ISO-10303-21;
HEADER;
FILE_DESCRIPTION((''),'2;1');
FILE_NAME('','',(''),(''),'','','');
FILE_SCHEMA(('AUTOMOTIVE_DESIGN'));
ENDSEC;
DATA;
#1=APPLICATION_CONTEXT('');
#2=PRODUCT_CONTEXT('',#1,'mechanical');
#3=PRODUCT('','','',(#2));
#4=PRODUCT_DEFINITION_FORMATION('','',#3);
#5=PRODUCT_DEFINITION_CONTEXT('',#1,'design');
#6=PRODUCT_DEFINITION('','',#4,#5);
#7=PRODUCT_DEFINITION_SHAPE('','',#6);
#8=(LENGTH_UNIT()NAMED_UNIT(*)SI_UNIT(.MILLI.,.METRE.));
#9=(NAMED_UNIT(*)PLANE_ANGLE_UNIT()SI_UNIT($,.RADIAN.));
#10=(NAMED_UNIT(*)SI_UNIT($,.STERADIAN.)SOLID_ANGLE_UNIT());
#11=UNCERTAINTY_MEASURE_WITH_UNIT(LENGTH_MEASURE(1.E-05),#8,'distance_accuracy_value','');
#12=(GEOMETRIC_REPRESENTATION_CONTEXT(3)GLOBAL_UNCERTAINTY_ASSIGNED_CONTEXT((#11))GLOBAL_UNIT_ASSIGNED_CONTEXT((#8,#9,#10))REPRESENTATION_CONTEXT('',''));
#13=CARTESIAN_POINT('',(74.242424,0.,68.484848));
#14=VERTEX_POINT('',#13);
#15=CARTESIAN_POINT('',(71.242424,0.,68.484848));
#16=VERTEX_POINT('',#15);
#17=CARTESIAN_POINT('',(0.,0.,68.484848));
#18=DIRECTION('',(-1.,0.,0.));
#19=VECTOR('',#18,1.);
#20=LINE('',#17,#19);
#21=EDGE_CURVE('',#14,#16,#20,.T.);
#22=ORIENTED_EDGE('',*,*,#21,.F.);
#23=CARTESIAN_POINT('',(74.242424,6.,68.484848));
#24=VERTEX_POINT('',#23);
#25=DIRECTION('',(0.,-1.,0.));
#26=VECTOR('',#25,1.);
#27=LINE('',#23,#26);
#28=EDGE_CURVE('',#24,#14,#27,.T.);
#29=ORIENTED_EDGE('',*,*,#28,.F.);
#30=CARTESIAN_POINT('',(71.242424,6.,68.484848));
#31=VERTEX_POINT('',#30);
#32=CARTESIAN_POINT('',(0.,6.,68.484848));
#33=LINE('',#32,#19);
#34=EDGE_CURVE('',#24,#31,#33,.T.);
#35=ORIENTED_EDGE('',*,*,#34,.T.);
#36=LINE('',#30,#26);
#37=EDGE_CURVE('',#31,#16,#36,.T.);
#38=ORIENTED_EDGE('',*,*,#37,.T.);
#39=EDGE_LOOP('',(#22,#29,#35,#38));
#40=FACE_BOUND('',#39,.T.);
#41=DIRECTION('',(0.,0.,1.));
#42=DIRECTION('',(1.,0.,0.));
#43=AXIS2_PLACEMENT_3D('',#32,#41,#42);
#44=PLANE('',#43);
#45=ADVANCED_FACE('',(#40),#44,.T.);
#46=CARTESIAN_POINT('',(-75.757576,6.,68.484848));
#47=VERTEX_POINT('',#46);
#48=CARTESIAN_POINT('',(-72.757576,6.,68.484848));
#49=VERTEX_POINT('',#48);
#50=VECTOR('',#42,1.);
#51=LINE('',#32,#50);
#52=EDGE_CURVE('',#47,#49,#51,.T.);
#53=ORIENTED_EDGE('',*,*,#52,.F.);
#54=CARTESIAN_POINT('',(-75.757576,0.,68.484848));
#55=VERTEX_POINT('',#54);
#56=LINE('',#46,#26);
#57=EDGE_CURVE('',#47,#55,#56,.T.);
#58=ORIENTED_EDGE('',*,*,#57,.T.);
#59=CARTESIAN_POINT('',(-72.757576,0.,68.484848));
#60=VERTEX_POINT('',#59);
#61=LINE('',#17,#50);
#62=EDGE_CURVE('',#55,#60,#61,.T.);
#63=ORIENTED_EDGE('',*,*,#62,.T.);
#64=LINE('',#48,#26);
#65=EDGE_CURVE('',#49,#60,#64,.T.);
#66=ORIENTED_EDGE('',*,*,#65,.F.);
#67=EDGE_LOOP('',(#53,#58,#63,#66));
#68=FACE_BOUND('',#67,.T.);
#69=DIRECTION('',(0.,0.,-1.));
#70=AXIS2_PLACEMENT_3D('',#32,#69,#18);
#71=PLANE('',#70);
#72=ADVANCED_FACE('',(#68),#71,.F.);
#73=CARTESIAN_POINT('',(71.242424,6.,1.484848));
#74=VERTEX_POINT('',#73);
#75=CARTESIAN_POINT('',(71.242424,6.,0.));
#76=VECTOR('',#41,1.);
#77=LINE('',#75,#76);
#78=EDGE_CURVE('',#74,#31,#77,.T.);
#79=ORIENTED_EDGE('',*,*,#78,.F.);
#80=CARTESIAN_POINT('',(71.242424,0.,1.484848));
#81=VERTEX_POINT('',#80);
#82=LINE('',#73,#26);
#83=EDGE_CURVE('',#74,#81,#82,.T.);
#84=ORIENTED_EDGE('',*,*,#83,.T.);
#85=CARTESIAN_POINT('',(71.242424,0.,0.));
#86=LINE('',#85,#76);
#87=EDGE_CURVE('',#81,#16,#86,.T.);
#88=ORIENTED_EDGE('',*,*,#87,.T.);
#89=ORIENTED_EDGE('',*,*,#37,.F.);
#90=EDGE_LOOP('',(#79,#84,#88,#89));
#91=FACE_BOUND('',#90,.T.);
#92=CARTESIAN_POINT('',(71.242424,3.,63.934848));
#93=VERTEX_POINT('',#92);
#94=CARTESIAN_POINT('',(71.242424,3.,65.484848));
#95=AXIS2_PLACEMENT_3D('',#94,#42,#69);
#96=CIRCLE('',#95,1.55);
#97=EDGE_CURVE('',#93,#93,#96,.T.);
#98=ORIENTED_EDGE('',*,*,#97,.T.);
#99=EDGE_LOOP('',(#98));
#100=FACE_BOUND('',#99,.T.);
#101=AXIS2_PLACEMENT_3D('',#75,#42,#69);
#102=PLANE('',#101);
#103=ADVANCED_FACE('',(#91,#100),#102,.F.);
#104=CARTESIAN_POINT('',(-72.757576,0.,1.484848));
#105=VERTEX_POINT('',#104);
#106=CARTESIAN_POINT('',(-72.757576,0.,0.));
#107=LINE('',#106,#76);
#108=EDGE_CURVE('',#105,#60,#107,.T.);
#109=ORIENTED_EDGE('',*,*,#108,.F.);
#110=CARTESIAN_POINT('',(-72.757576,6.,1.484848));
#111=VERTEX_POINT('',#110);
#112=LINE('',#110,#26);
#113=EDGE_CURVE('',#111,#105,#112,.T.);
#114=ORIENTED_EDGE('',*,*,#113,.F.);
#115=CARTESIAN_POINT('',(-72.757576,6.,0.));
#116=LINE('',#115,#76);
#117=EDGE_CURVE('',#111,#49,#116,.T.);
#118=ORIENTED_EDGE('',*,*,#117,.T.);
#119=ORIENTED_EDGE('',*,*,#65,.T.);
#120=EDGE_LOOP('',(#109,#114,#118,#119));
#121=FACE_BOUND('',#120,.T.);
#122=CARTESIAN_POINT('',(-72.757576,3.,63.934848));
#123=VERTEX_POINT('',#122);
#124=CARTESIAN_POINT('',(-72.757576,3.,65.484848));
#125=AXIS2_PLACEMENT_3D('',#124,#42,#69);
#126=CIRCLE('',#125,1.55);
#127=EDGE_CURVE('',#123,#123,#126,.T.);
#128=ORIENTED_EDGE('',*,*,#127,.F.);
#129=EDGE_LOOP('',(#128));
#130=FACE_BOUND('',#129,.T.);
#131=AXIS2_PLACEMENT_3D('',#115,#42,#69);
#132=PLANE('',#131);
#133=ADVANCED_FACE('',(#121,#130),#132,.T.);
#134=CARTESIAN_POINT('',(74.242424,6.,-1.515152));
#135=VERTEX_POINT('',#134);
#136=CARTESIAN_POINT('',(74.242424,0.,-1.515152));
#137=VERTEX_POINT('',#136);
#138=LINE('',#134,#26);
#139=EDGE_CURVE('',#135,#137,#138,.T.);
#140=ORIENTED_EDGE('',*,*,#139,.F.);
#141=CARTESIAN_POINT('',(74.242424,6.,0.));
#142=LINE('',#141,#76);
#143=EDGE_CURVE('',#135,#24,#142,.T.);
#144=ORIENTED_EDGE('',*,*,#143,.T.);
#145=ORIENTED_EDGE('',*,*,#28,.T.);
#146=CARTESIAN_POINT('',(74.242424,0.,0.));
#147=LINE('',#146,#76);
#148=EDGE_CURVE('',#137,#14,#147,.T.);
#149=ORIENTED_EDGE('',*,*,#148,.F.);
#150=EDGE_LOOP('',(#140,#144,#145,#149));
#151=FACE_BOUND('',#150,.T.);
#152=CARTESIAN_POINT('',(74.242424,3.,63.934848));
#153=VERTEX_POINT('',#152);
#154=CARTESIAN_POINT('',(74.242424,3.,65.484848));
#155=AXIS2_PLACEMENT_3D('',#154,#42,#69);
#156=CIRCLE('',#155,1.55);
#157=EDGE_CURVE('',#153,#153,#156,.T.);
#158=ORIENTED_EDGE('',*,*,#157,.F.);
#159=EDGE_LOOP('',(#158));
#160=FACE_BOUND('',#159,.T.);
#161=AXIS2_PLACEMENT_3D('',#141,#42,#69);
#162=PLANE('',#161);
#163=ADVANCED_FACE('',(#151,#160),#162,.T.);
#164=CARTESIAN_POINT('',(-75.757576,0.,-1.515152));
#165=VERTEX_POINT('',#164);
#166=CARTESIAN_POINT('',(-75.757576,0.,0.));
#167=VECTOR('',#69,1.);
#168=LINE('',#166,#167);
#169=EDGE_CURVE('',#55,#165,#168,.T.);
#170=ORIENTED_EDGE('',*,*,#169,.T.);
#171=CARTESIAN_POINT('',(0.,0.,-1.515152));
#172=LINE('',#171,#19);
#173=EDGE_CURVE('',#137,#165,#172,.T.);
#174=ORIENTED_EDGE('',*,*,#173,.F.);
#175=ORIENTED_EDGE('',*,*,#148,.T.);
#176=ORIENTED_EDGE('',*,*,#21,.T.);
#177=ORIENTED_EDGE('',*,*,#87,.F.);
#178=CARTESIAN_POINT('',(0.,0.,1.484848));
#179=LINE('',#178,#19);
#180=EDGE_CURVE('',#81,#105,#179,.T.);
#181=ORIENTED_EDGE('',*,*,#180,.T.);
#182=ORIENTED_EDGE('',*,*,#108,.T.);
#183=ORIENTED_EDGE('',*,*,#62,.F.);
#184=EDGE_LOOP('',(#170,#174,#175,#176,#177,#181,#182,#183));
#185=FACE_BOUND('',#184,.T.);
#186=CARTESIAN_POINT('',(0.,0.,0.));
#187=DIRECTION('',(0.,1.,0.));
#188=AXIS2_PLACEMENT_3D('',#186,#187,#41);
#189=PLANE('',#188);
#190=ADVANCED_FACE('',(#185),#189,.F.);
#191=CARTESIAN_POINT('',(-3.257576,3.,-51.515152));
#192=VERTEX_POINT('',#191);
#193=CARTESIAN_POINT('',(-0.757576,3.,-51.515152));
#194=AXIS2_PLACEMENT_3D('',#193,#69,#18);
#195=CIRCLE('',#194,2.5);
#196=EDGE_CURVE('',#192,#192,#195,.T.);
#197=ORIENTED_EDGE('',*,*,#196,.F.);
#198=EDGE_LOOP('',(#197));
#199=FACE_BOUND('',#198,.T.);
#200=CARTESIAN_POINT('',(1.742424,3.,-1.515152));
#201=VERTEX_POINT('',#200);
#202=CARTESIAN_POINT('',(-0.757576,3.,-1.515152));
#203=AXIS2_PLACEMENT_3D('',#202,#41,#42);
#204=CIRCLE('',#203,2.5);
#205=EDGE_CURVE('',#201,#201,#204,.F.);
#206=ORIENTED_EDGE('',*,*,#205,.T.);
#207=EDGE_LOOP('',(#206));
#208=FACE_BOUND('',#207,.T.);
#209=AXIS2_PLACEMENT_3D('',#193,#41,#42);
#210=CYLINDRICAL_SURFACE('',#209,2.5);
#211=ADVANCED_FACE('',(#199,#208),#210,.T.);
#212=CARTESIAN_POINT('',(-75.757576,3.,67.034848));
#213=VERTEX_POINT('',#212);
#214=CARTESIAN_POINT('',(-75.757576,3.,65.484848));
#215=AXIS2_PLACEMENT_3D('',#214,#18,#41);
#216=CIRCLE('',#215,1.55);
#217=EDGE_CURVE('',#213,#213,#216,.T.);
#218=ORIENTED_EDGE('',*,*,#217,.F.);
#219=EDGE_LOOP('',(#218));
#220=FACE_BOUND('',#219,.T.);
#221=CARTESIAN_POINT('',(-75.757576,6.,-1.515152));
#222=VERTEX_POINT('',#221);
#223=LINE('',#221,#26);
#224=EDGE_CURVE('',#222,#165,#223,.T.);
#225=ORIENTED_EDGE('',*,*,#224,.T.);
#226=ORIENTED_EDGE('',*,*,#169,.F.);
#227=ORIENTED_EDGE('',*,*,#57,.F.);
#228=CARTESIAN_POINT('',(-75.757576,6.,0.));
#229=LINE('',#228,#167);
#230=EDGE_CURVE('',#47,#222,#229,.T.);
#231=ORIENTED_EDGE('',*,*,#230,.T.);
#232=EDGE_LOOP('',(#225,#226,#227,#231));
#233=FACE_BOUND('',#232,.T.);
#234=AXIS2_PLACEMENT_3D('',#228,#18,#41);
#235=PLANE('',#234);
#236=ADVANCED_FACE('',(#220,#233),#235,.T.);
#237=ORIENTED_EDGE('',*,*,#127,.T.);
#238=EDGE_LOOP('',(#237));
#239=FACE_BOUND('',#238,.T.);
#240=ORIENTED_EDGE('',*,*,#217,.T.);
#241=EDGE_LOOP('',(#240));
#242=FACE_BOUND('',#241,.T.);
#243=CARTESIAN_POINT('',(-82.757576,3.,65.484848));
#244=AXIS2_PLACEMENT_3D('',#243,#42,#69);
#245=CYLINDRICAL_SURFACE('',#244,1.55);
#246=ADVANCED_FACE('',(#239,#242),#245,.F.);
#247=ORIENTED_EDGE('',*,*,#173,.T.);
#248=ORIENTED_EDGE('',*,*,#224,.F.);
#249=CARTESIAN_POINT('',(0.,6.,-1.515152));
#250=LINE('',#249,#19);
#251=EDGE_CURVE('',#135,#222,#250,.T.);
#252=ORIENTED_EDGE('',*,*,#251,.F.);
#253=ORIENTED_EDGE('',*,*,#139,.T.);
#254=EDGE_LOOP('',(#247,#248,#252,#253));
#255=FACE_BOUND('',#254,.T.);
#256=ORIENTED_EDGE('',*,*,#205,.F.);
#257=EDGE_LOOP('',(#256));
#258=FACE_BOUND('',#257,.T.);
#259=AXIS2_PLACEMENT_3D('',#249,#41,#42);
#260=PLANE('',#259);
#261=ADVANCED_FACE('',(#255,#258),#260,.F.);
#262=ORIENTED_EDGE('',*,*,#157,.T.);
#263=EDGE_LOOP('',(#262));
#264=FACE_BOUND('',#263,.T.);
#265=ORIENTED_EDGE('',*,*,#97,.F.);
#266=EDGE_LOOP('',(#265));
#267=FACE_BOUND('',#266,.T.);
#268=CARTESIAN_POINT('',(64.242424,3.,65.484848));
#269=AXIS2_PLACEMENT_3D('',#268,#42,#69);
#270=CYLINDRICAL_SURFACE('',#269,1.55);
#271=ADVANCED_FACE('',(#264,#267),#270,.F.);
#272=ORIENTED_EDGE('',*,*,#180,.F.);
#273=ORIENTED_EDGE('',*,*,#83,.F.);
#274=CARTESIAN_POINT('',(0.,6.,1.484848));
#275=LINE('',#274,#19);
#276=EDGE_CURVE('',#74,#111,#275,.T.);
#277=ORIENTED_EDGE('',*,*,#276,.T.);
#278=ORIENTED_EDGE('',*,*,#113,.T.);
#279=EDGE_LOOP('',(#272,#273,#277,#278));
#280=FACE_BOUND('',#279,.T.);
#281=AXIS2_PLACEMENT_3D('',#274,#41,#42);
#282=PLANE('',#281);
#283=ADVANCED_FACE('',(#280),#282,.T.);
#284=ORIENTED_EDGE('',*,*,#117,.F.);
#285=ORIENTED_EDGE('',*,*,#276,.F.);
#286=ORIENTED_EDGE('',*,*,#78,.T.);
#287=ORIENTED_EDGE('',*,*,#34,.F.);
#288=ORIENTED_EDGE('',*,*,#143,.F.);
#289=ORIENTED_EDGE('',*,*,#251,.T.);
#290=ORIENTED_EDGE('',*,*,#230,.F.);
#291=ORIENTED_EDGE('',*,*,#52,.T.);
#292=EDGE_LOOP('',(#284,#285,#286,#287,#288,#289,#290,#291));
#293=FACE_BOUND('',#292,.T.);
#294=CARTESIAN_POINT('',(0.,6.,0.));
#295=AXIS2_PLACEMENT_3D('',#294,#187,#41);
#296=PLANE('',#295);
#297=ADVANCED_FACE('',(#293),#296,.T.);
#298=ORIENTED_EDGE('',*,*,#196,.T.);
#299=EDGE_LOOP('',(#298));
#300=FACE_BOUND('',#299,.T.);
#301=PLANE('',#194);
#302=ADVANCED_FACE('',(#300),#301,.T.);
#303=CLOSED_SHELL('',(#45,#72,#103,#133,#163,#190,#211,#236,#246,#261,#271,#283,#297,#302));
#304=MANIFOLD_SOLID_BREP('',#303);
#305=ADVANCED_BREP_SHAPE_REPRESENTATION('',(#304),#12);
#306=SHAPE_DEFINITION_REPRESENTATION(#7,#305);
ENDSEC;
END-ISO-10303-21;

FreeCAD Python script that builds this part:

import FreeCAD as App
import Part
import Sketcher


def add_polygon(sketch, points):
    """Adds a closed chain of lines whose ends are joined by coincident constraints."""
    first, n = sketch.GeometryCount, len(points)
    for a, b in zip(points, points[1:] + points[:1]):
        sketch.addGeometry(Part.LineSegment(App.Vector(*a, 0), App.Vector(*b, 0)), False)
    for i in range(n):
        sketch.addConstraint(Sketcher.Constraint("Coincident", first + i, 2, first + (i + 1) % n, 1))

doc = App.newDocument("Part")
body = doc.addObject("PartDesign::Body", "Body")

# Sketch on XZ plane
sketch1 = doc.addObject("Sketcher::SketchObject", "Sketch")
body.addObject(sketch1)
sketch1.AttachmentSupport = (doc.XZ_Plane, [""])
sketch1.MapMode = "FlatFace"
add_polygon(sketch1, [(-72.8, 68.5), (-72.8, 1.5), (71.2, 1.5), (71.2, 68.5), (74.2, 68.5), (74.2, -1.5), (-75.8, -1.5), (-75.8, 68.5)])  # lines 0-7
sketch1.addConstraint(Sketcher.Constraint("Vertical", 0))
sketch1.addConstraint(Sketcher.Constraint("Horizontal", 1))
sketch1.addConstraint(Sketcher.Constraint("Vertical", 2))
sketch1.addConstraint(Sketcher.Constraint("Horizontal", 3))
sketch1.addConstraint(Sketcher.Constraint("Vertical", 4))
sketch1.addConstraint(Sketcher.Constraint("Horizontal", 5))
sketch1.addConstraint(Sketcher.Constraint("Vertical", 6))
sketch1.addConstraint(Sketcher.Constraint("Horizontal", 7))
sketch1.addConstraint(Sketcher.Constraint("Horizontal", 3, 2, 6, 2))
sketch1.addConstraint(Sketcher.Constraint("Equal", 3, 7))
sketch1.addConstraint(Sketcher.Constraint("DistanceX", 1, 1, 1, 2, 144.0))
sketch1.addConstraint(Sketcher.Constraint("DistanceX", 3, 1, 3, 2, 3.0))
sketch1.addConstraint(Sketcher.Constraint("DistanceY", 0, 2, 0, 1, 67.0))
sketch1.addConstraint(Sketcher.Constraint("DistanceY", 4, 2, 4, 1, 70.0))
sketch1.addConstraint(Sketcher.Constraint("DistanceY", -1, 1, 0, 2, 1.484848))
sketch1.addConstraint(Sketcher.Constraint("DistanceX", 0, 2, -1, 1, 72.757576))
pad1 = doc.addObject("PartDesign::Pad", "Pad")
body.addObject(pad1)
pad1.Profile = sketch1
pad1.Length = 6
pad1.Reversed = True

# Sketch on YZ plane
sketch2 = doc.addObject("Sketcher::SketchObject", "Sketch001")
body.addObject(sketch2)
sketch2.AttachmentSupport = (doc.YZ_Plane, [""])
sketch2.MapMode = "FlatFace"
sketch2.AttachmentOffset = App.Placement(App.Vector(0, 0, -72.757576), App.Rotation())
sketch2.addGeometry(Part.Circle(App.Vector(3, 65.5, 0), App.Vector(0, 0, 1), 1.6), False)
sketch2.addConstraint(Sketcher.Constraint("Diameter", 0, 3.1))
sketch2.addConstraint(Sketcher.Constraint("DistanceX", -1, 1, 0, 3, 3.0))
sketch2.addConstraint(Sketcher.Constraint("DistanceY", -1, 1, 0, 3, 65.484848))
pocket1 = doc.addObject("PartDesign::Pocket", "Pocket")
body.addObject(pocket1)
pocket1.Profile = sketch2
pocket1.Length = 10

# Sketch on YZ plane
sketch3 = doc.addObject("Sketcher::SketchObject", "Sketch002")
body.addObject(sketch3)
sketch3.AttachmentSupport = (doc.YZ_Plane, [""])
sketch3.MapMode = "FlatFace"
sketch3.AttachmentOffset = App.Placement(App.Vector(0, 0, 74.242424), App.Rotation())
sketch3.addGeometry(Part.Circle(App.Vector(3, 65.5, 0), App.Vector(0, 0, 1), 1.6), False)
sketch3.addConstraint(Sketcher.Constraint("Diameter", 0, 3.1))
sketch3.addConstraint(Sketcher.Constraint("DistanceX", -1, 1, 0, 3, 3.0))
sketch3.addConstraint(Sketcher.Constraint("DistanceY", -1, 1, 0, 3, 65.484848))
pocket2 = doc.addObject("PartDesign::Pocket", "Pocket001")
body.addObject(pocket2)
pocket2.Profile = sketch3
pocket2.Length = 10

# Sketch on XY plane
sketch4 = doc.addObject("Sketcher::SketchObject", "Sketch003")
body.addObject(sketch4)
sketch4.AttachmentSupport = (doc.XY_Plane, [""])
sketch4.MapMode = "FlatFace"
sketch4.AttachmentOffset = App.Placement(App.Vector(0, 0, -1.515152), App.Rotation())
sketch4.addGeometry(Part.Circle(App.Vector(-0.8, 3, 0), App.Vector(0, 0, 1), 2.5), False)
sketch4.addConstraint(Sketcher.Constraint("Diameter", 0, 5.0))
sketch4.addConstraint(Sketcher.Constraint("DistanceY", -1, 1, 0, 3, 3.0))
sketch4.addConstraint(Sketcher.Constraint("DistanceX", 0, 3, -1, 1, 0.757576))
pad2 = doc.addObject("PartDesign::Pad", "Pad001")
body.addObject(pad2)
pad2.Profile = sketch4
pad2.Length = 50
pad2.Reversed = True

doc.recompute()
